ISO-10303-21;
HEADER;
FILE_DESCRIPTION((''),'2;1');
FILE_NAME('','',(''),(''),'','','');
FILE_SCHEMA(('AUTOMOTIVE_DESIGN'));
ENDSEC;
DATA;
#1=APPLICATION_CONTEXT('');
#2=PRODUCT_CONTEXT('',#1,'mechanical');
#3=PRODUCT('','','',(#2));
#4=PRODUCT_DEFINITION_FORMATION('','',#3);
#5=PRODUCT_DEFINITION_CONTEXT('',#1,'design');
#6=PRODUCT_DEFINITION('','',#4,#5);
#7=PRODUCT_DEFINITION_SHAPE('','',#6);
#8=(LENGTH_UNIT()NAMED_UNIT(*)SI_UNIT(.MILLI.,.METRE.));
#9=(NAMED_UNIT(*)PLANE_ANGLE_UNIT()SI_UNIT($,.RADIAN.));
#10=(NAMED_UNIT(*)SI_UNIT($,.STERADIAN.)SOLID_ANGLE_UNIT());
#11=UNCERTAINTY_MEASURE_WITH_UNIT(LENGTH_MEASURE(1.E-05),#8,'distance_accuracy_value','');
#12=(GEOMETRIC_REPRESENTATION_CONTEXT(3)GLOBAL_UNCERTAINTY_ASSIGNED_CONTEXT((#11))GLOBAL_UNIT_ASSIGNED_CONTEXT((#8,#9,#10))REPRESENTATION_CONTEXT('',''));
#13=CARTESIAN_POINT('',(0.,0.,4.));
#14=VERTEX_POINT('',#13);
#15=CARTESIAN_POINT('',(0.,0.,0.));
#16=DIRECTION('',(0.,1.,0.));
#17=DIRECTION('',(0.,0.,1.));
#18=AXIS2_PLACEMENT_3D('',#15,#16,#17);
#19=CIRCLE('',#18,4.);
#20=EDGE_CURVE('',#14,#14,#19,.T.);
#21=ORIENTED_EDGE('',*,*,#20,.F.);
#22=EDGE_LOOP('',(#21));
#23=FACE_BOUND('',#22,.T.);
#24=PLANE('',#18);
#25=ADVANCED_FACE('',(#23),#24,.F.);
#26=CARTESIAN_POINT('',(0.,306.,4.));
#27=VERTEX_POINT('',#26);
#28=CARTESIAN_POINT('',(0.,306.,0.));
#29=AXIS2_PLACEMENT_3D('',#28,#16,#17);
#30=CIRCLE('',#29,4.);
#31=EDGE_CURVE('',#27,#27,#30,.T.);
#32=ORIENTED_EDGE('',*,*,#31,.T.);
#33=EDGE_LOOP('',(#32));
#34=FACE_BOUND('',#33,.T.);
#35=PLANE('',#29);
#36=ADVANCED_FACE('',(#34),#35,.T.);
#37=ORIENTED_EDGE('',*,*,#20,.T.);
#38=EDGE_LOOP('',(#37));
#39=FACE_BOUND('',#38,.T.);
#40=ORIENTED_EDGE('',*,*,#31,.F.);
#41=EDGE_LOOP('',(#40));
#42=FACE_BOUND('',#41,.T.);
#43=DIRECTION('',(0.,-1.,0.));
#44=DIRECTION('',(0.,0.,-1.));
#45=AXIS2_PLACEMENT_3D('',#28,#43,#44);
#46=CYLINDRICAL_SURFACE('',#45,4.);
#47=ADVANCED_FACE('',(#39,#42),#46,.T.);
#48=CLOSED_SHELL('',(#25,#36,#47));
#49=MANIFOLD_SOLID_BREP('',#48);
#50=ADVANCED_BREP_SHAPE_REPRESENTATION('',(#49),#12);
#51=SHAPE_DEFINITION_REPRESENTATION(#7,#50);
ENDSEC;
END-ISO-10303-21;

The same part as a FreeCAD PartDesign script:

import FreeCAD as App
import Part
import Sketcher
from FreeCAD import Vector

doc = App.newDocument("Part")
body = doc.addObject("PartDesign::Body", "Body")

# Sketch on XZ plane
sketch1 = body.newObject("Sketcher::SketchObject", "Sketch")
sketch1.AttachmentSupport = (doc.getObject("XZ_Plane"), [""])
sketch1.MapMode = "FlatFace"
sketch1.addGeometry(Part.Circle(Vector(0, 0, 0), Vector(0, 0, 1), 4), False)
sketch1.addConstraint([
    Sketcher.Constraint("Coincident", 0, 3, -1, 1),
    Sketcher.Constraint("Diameter", 0, 8.0),
])

# Sketch on XY plane
sketch2 = body.newObject("Sketcher::SketchObject", "Sketch001")
sketch2.AttachmentSupport = (doc.getObject("XY_Plane"), [""])
sketch2.MapMode = "FlatFace"
sketch2.addGeometry(Part.LineSegment(Vector(0, 0, 0), Vector(0, 306, 0)), False)
sketch2.addConstraint([
    Sketcher.Constraint("Vertical", 0),
    Sketcher.Constraint("Coincident", 0, 1, -1, 1),
    Sketcher.Constraint("DistanceY", 0, 1, 0, 2, 306.0),
])
doc.recompute()

additivepipe = body.newObject("PartDesign::AdditivePipe", "AdditivePipe")
additivepipe.Profile = sketch1
additivepipe.Spine = (sketch2, ["Edge1"])

doc.recompute()
